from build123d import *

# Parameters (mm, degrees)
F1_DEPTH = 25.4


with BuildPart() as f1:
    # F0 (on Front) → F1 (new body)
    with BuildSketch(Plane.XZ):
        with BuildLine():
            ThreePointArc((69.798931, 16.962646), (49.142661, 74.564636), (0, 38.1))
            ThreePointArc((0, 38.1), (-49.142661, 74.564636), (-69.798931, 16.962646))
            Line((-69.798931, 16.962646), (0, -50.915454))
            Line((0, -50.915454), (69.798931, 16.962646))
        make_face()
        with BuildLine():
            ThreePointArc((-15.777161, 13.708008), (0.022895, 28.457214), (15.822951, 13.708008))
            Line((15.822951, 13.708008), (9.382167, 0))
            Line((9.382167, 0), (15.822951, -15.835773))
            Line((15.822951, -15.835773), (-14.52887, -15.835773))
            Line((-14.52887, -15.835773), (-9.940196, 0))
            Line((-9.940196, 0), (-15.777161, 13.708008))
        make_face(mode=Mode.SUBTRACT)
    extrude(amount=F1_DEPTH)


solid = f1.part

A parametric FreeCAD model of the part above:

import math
import FreeCAD as App
import Part
import Sketcher
Q = App.Units.Quantity

doc = App.newDocument("Part")
params = doc.addObject("Spreadsheet::Sheet", "Params")
for row, (alias, value) in enumerate([
    ("sketch1_radius", "1.5 in"),
    ("pad1_length", "1 in"),
], start=1):
    params.set(f"A{row}", alias)
    params.set(f"B{row}", "=" + value)
    params.setAlias(f"B{row}", alias)

body = doc.addObject("PartDesign::Body", "Body")

# Sketch on XZ plane
sketch1 = body.newObject("Sketcher::SketchObject", "Sketch")
sketch1.AttachmentSupport = (doc.getObject("XZ_Plane"), [""])
sketch1.MapMode = "FlatFace"
sketch1.addGeometry([
    Part.ArcOfCircle(Part.Circle(App.Vector(38, 38, 0), App.Vector(0, 0, 1), 38), math.radians(-34), math.radians(180)),  # 0
    Part.ArcOfCircle(Part.Circle(App.Vector(-38, 38, 0), App.Vector(0, 0, 1), 38), math.radians(0), math.radians(214)),  # 1
    Part.LineSegment(App.Vector(-70, 17, 0), App.Vector(0, -51, 0)),  # 2
    Part.LineSegment(App.Vector(0, -51, 0), App.Vector(70, 17, 0)),  # 3
    Part.LineSegment(App.Vector(-10, 0, 0), App.Vector(-16, 14, 0)),  # 4
    Part.ArcOfCircle(Part.Circle(App.Vector(0, 13, 0), App.Vector(0, 0, 1), 16), math.radians(4), math.radians(176)),  # 5
    Part.LineSegment(App.Vector(16, 14, 0), App.Vector(9, 0, 0)),  # 6
    Part.LineSegment(App.Vector(9, 0, 0), App.Vector(16, -16, 0)),  # 7
    Part.LineSegment(App.Vector(16, -16, 0), App.Vector(-15, -16, 0)),  # 8
    Part.LineSegment(App.Vector(-15, -16, 0), App.Vector(-10, 0, 0)),  # 9
], False)
sketch1.addConstraint([
    Sketcher.Constraint("Tangent", 0, 2, 1, 1),
    Sketcher.Constraint("Coincident", 1, 2, 2, 1),
    Sketcher.Constraint("Coincident", 2, 2, 3, 1),
    Sketcher.Constraint("Coincident", 3, 2, 0, 1),
    Sketcher.Constraint("Coincident", 4, 2, 5, 2),
    Sketcher.Constraint("Coincident", 5, 1, 6, 1),
    Sketcher.Constraint("Coincident", 6, 2, 7, 1),
    Sketcher.Constraint("Coincident", 7, 2, 8, 1),
    Sketcher.Constraint("Coincident", 8, 2, 9, 1),
    Sketcher.Constraint("Coincident", 9, 2, 4, 1),
    Sketcher.Constraint("Horizontal", 8),
    Sketcher.Constraint("Equal", 0, 1),
    Sketcher.Constraint("Symmetric", 0, 3, 1, 3, -2),
    Sketcher.Constraint("PointOnObject", 2, 2, -2),
    Sketcher.Constraint("PointOnObject", 6, 2, -1),
    Sketcher.Constraint("PointOnObject", 9, 2, -1),
    Sketcher.Constraint("Horizontal", 1, 2, 3, 2),
    Sketcher.Constraint("Horizontal", 4, 2, 5, 1),
    Sketcher.Constraint("Vertical", 5, 1, 7, 2),
    Sketcher.Constraint("Radius", 0, Q("1.5 in")),
    Sketcher.Constraint("DistanceY", -1, 1, 0, 3, Q("1.5 in")),
    Sketcher.Constraint("Radius", 5, Q("15.837491 mm")),
    Sketcher.Constraint("DistanceX", 8, 2, 8, 1, Q("30.351821 mm")),
    Sketcher.Constraint("DistanceY", 2, 2, 1, 2, Q("67.8781 mm")),
    Sketcher.Constraint("Distance", 4, Q("14.898981 mm")),
    Sketcher.Constraint("Distance", 6, Q("15.145731 mm")),
    Sketcher.Constraint("Distance", 7, Q("17.095479 mm")),
    Sketcher.Constraint("DistanceX", 1, 2, -1, 1, Q("69.798931 mm")),
    Sketcher.Constraint("DistanceX", 4, 2, -1, 1, Q("15.777161 mm")),
    Sketcher.Constraint("DistanceX", -1, 1, 5, 1, Q("15.822951 mm")),
    Sketcher.Constraint("DistanceY", 5, 3, 0, 3, Q("25.480278 mm")),
])
sketch1.setExpression("Constraints[19]", "Params.sketch1_radius")
pad1 = body.newObject("PartDesign::Pad", "Pad")
pad1.Profile = sketch1
pad1.setExpression("Length", "Params.pad1_length")

doc.recompute()
